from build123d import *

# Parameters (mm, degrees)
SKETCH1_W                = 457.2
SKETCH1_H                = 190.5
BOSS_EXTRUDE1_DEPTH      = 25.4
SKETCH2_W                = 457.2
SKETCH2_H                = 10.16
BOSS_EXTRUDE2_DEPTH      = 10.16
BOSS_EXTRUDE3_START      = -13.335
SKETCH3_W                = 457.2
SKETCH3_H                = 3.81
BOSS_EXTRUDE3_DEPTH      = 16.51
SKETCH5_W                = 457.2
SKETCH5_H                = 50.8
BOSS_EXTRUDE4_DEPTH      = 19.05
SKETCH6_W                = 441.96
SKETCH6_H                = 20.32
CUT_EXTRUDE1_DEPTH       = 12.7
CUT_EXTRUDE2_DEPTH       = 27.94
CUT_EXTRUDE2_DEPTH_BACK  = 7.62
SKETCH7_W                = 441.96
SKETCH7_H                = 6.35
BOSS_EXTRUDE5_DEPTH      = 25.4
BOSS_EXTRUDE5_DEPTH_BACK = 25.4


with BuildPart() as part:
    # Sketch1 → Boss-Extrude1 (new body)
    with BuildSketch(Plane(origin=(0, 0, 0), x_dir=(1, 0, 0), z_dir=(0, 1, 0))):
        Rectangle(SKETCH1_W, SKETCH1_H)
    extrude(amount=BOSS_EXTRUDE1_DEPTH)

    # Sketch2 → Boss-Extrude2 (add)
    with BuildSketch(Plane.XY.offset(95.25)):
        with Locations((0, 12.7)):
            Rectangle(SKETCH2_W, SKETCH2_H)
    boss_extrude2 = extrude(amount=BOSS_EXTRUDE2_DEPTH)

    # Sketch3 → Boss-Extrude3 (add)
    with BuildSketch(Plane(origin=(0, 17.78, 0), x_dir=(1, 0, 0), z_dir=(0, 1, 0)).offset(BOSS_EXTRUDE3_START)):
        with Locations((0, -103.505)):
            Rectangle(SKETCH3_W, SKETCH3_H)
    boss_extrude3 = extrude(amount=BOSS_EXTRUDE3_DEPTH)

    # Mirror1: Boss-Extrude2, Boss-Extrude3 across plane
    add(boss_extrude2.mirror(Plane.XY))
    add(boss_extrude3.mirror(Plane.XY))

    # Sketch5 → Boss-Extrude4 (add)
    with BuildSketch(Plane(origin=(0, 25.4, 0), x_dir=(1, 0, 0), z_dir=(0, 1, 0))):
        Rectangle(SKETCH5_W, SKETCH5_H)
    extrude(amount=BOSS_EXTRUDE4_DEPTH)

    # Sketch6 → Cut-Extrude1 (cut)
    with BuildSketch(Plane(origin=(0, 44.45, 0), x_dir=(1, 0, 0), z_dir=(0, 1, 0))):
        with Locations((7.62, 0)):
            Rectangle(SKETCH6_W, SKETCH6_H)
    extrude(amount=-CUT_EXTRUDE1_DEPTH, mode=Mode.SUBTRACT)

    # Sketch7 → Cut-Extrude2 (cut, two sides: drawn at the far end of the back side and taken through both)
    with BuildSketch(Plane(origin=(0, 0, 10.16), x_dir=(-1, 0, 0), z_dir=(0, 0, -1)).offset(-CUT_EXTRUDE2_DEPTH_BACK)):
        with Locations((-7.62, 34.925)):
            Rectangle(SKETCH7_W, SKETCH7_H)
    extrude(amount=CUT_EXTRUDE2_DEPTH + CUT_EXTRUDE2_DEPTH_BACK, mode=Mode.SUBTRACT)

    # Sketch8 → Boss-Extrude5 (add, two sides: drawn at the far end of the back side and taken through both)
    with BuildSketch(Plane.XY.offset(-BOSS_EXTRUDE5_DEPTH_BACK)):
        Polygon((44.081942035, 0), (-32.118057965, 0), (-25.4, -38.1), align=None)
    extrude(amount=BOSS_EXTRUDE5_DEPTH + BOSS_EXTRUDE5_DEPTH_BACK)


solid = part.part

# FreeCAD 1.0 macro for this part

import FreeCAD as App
import Part
import Sketcher
Q = App.Units.Quantity

doc = App.newDocument("Part")
body = doc.addObject("PartDesign::Body", "Body")

# Sketch on XZ plane
sketch1 = body.newObject("Sketcher::SketchObject", "Sketch")
sketch1.AttachmentSupport = (doc.getObject("XZ_Plane"), [""])
sketch1.MapMode = "FlatFace"
sketch1.addGeometry([
    Part.LineSegment(App.Vector(-229, -95, 0), App.Vector(-229, 95, 0)),
    Part.LineSegment(App.Vector(-229, 95, 0), App.Vector(229, 95, 0)),
    Part.LineSegment(App.Vector(229, 95, 0), App.Vector(229, -95, 0)),
    Part.LineSegment(App.Vector(229, -95, 0), App.Vector(-229, -95, 0)),
], False)
sketch1.addConstraint([
    Sketcher.Constraint("Coincident", 0, 2, 1, 1),
    Sketcher.Constraint("Coincident", 1, 2, 2, 1),
    Sketcher.Constraint("Coincident", 2, 2, 3, 1),
    Sketcher.Constraint("Coincident", 3, 2, 0, 1),
    Sketcher.Constraint("Vertical", 0),
    Sketcher.Constraint("Horizontal", 1),
    Sketcher.Constraint("Vertical", 2),
    Sketcher.Constraint("Horizontal", 3),
    Sketcher.Constraint("Symmetric", 0, 2, 2, 2, -1, 1),
    Sketcher.Constraint("DistanceX", 1, 1, 1, 2, Q("18 in")),
    Sketcher.Constraint("DistanceY", 0, 1, 0, 2, Q("7.5 in")),
])
pad1 = body.newObject("PartDesign::Pad", "Pad")
pad1.Profile = sketch1
pad1.Length = Q("1 in")
pad1.Reversed = True

# Sketch on XY plane
sketch2 = body.newObject("Sketcher::SketchObject", "Sketch001")
sketch2.AttachmentSupport = (doc.getObject("XY_Plane"), [""])
sketch2.MapMode = "FlatFace"
sketch2.AttachmentOffset = App.Placement(App.Vector(0, 0, 3.75 * 25.4), App.Rotation())
sketch2.addGeometry([
    Part.LineSegment(App.Vector(-229, 18, 0), App.Vector(-229, 8, 0)),
    Part.LineSegment(App.Vector(-229, 8, 0), App.Vector(229, 8, 0)),
    Part.LineSegment(App.Vector(229, 8, 0), App.Vector(229, 18, 0)),
    Part.LineSegment(App.Vector(229, 18, 0), App.Vector(-229, 18, 0)),
], False)
sketch2.addConstraint([
    Sketcher.Constraint("Coincident", 0, 2, 1, 1),
    Sketcher.Constraint("Coincident", 1, 2, 2, 1),
    Sketcher.Constraint("Coincident", 2, 2, 3, 1),
    Sketcher.Constraint("Coincident", 3, 2, 0, 1),
    Sketcher.Constraint("Vertical", 0),
    Sketcher.Constraint("Horizontal", 1),
    Sketcher.Constraint("Vertical", 2),
    Sketcher.Constraint("Horizontal", 3),
    Sketcher.Constraint("DistanceX", 1, 1, 1, 2, Q("18 in")),
    Sketcher.Constraint("DistanceY", 0, 2, 0, 1, Q("0.4 in")),
    Sketcher.Constraint("DistanceX", 0, 2, -1, 1, Q("9 in")),
    Sketcher.Constraint("DistanceY", -1, 1, 0, 2, Q("0.3 in")),
])
pad2 = body.newObject("PartDesign::Pad", "Pad001")
pad2.Profile = sketch2
pad2.Length = Q("0.4 in")

# Sketch on XZ plane
sketch3 = body.newObject("Sketcher::SketchObject", "Sketch002")
sketch3.AttachmentSupport = (doc.getObject("XZ_Plane"), [""])
sketch3.MapMode = "FlatFace"
sketch3.AttachmentOffset = App.Placement(App.Vector(0, 0, -0.175 * 25.4), App.Rotation())
sketch3.addGeometry([
    Part.LineSegment(App.Vector(-228.6, 101.6, 0), App.Vector(-228.6, 105.4, 0)),
    Part.LineSegment(App.Vector(-228.6, 105.4, 0), App.Vector(228.6, 105.4, 0)),
    Part.LineSegment(App.Vector(228.6, 105.4, 0), App.Vector(228.6, 101.6, 0)),
    Part.LineSegment(App.Vector(228.6, 101.6, 0), App.Vector(-228.6, 101.6, 0)),
], False)
sketch3.addConstraint([
    Sketcher.Constraint("Coincident", 0, 2, 1, 1),
    Sketcher.Constraint("Coincident", 1, 2, 2, 1),
    Sketcher.Constraint("Coincident", 2, 2, 3, 1),
    Sketcher.Constraint("Coincident", 3, 2, 0, 1),
    Sketcher.Constraint("Vertical", 0),
    Sketcher.Constraint("Horizontal", 1),
    Sketcher.Constraint("Vertical", 2),
    Sketcher.Constraint("Horizontal", 3),
    Sketcher.Constraint("DistanceX", 1, 1, 1, 2, Q("18 in")),
    Sketcher.Constraint("DistanceX", 0, 2, -1, 1, Q("9 in")),
    Sketcher.Constraint("DistanceY", -1, 1, 2, 2, Q("4 in")),
    Sketcher.Constraint("DistanceY", 0, 1, 0, 2, Q("0.15 in")),
])
pad3 = body.newObject("PartDesign::Pad", "Pad002")
pad3.Profile = sketch3
pad3.Length = Q("0.65 in")
pad3.Reversed = True
doc.recompute()

mirrored = body.newObject("PartDesign::Mirrored", "Mirrored")
mirrored.Originals = [pad2, pad3]
mirrored.MirrorPlane = (doc.getObject("XY_Plane"), [""])
body.Tip = mirrored

# Sketch on XZ plane
sketch4 = body.newObject("Sketcher::SketchObject", "Sketch003")
sketch4.AttachmentSupport = (doc.getObject("XZ_Plane"), [""])
sketch4.MapMode = "FlatFace"
sketch4.AttachmentOffset = App.Placement(App.Vector(0, 0, -1 * 25.4), App.Rotation())
sketch4.addGeometry([
    Part.LineSegment(App.Vector(-229, -25, 0), App.Vector(-229, 25, 0)),
    Part.LineSegment(App.Vector(-229, 25, 0), App.Vector(229, 25, 0)),
    Part.LineSegment(App.Vector(229, 25, 0), App.Vector(229, -25, 0)),
    Part.LineSegment(App.Vector(229, -25, 0), App.Vector(-229, -25, 0)),
], False)
sketch4.addConstraint([
    Sketcher.Constraint("Coincident", 0, 2, 1, 1),
    Sketcher.Constraint("Coincident", 1, 2, 2, 1),
    Sketcher.Constraint("Coincident", 2, 2, 3, 1),
    Sketcher.Constraint("Coincident", 3, 2, 0, 1),
    Sketcher.Constraint("Vertical", 0),
    Sketcher.Constraint("Horizontal", 1),
    Sketcher.Constraint("Vertical", 2),
    Sketcher.Constraint("Horizontal", 3),
    Sketcher.Constraint("Symmetric", 0, 2, 2, 2, -1, 1),
    Sketcher.Constraint("DistanceX", 1, 1, 1, 2, Q("18 in")),
    Sketcher.Constraint("DistanceY", 0, 1, 0, 2, Q("2 in")),
])
pad4 = body.newObject("PartDesign::Pad", "Pad003")
pad4.Profile = sketch4
pad4.Length = Q("0.75 in")
pad4.Reversed = True

# Sketch on XZ plane
sketch5 = body.newObject("Sketcher::SketchObject", "Sketch004")
sketch5.AttachmentSupport = (doc.getObject("XZ_Plane"), [""])
sketch5.MapMode = "FlatFace"
sketch5.AttachmentOffset = App.Placement(App.Vector(0, 0, -1.75 * 25.4), App.Rotation())
sketch5.addGeometry([
    Part.LineSegment(App.Vector(-213, -10, 0), App.Vector(-213, 10, 0)),
    Part.LineSegment(App.Vector(-213, 10, 0), App.Vector(229, 10, 0)),
    Part.LineSegment(App.Vector(229, 10, 0), App.Vector(229, -10, 0)),
    Part.LineSegment(App.Vector(229, -10, 0), App.Vector(-213, -10, 0)),
], False)
sketch5.addConstraint([
    Sketcher.Constraint("Coincident", 0, 2, 1, 1),
    Sketcher.Constraint("Coincident", 1, 2, 2, 1),
    Sketcher.Constraint("Coincident", 2, 2, 3, 1),
    Sketcher.Constraint("Coincident", 3, 2, 0, 1),
    Sketcher.Constraint("Vertical", 0),
    Sketcher.Constraint("Horizontal", 1),
    Sketcher.Constraint("Vertical", 2),
    Sketcher.Constraint("Horizontal", 3),
    Sketcher.Constraint("DistanceX", 1, 1, 1, 2, Q("17.4 in")),
    Sketcher.Constraint("DistanceY", 0, 1, 0, 2, Q("0.8 in")),
    Sketcher.Constraint("DistanceX", -1, 1, 1, 2, Q("9 in")),
    Sketcher.Constraint("DistanceY", -1, 1, 0, 2, Q("0.4 in")),
])
pocket1 = body.newObject("PartDesign::Pocket", "Pocket")
pocket1.Profile = sketch5
pocket1.Length = Q("0.5 in")
pocket1.Reversed = True

# Sketch on XY plane
sketch6 = body.newObject("Sketcher::SketchObject", "Sketch005")
sketch6.AttachmentSupport = (doc.getObject("XY_Plane"), [""])
sketch6.MapMode = "FlatFace"
sketch6.AttachmentOffset = App.Placement(App.Vector(0, 0, 0.4 * 25.4), App.Rotation())
sketch6.addGeometry([
    Part.LineSegment(App.Vector(229, 38, 0), App.Vector(229, 32, 0)),
    Part.LineSegment(App.Vector(229, 32, 0), App.Vector(-213, 32, 0)),
    Part.LineSegment(App.Vector(-213, 32, 0), App.Vector(-213, 38, 0)),
    Part.LineSegment(App.Vector(-213, 38, 0), App.Vector(229, 38, 0)),
], False)
sketch6.addConstraint([
    Sketcher.Constraint("Coincident", 0, 2, 1, 1),
    Sketcher.Constraint("Coincident", 1, 2, 2, 1),
    Sketcher.Constraint("Coincident", 2, 2, 3, 1),
    Sketcher.Constraint("Coincident", 3, 2, 0, 1),
    Sketcher.Constraint("Vertical", 0),
    Sketcher.Constraint("Horizontal", 1),
    Sketcher.Constraint("Vertical", 2),
    Sketcher.Constraint("Horizontal", 3),
    Sketcher.Constraint("DistanceX", 1, 2, 1, 1, Q("17.4 in")),
    Sketcher.Constraint("DistanceX", -1, 1, 0, 2, Q("9 in")),
    Sketcher.Constraint("DistanceY", 0, 2, 0, 1, Q("0.25 in")),
    Sketcher.Constraint("DistanceY", -1, 1, 2, 2, Q("1.5 in")),
])
pocket2 = body.newObject("PartDesign::Pocket", "Pocket001")
pocket2.Profile = sketch6
pocket2.Type = "TwoLengths"
pocket2.Length = Q("1.1 in")
pocket2.Length2 = Q("0.3 in")

# Sketch on XY plane
sketch7 = body.newObject("Sketcher::SketchObject", "Sketch006")
sketch7.AttachmentSupport = (doc.getObject("XY_Plane"), [""])
sketch7.MapMode = "FlatFace"
sketch7.addGeometry([
    Part.LineSegment(App.Vector(44, 0, 0), App.Vector(-32, 0, 0)),
    Part.LineSegment(App.Vector(-32, 0, 0), App.Vector(-25, -38, 0)),
    Part.LineSegment(App.Vector(-25, -38, 0), App.Vector(44, 0, 0)),
], False)
sketch7.addConstraint([
    Sketcher.Constraint("Coincident", 0, 2, 1, 1),
    Sketcher.Constraint("Coincident", 1, 2, 2, 1),
    Sketcher.Constraint("Coincident", 2, 2, 0, 1),
    Sketcher.Constraint("Horizontal", 0),
    Sketcher.Constraint("PointOnObject", 0, 2, -1),
    Sketcher.Constraint("DistanceX", 0, 2, 0, 1, Q("3 in")),
    Sketcher.Constraint("DistanceX", 1, 2, -1, 1, Q("1 in")),
    Sketcher.Constraint("Angle", 1, Q("-80 deg")),
    Sketcher.Constraint("DistanceY", 1, 2, -1, 1, Q("1.5 in")),
])
pad5 = body.newObject("PartDesign::Pad", "Pad004")
pad5.Profile = sketch7
pad5.Type = "TwoLengths"
pad5.Length = Q("1 in")
pad5.Length2 = Q("1 in")

doc.recompute()
